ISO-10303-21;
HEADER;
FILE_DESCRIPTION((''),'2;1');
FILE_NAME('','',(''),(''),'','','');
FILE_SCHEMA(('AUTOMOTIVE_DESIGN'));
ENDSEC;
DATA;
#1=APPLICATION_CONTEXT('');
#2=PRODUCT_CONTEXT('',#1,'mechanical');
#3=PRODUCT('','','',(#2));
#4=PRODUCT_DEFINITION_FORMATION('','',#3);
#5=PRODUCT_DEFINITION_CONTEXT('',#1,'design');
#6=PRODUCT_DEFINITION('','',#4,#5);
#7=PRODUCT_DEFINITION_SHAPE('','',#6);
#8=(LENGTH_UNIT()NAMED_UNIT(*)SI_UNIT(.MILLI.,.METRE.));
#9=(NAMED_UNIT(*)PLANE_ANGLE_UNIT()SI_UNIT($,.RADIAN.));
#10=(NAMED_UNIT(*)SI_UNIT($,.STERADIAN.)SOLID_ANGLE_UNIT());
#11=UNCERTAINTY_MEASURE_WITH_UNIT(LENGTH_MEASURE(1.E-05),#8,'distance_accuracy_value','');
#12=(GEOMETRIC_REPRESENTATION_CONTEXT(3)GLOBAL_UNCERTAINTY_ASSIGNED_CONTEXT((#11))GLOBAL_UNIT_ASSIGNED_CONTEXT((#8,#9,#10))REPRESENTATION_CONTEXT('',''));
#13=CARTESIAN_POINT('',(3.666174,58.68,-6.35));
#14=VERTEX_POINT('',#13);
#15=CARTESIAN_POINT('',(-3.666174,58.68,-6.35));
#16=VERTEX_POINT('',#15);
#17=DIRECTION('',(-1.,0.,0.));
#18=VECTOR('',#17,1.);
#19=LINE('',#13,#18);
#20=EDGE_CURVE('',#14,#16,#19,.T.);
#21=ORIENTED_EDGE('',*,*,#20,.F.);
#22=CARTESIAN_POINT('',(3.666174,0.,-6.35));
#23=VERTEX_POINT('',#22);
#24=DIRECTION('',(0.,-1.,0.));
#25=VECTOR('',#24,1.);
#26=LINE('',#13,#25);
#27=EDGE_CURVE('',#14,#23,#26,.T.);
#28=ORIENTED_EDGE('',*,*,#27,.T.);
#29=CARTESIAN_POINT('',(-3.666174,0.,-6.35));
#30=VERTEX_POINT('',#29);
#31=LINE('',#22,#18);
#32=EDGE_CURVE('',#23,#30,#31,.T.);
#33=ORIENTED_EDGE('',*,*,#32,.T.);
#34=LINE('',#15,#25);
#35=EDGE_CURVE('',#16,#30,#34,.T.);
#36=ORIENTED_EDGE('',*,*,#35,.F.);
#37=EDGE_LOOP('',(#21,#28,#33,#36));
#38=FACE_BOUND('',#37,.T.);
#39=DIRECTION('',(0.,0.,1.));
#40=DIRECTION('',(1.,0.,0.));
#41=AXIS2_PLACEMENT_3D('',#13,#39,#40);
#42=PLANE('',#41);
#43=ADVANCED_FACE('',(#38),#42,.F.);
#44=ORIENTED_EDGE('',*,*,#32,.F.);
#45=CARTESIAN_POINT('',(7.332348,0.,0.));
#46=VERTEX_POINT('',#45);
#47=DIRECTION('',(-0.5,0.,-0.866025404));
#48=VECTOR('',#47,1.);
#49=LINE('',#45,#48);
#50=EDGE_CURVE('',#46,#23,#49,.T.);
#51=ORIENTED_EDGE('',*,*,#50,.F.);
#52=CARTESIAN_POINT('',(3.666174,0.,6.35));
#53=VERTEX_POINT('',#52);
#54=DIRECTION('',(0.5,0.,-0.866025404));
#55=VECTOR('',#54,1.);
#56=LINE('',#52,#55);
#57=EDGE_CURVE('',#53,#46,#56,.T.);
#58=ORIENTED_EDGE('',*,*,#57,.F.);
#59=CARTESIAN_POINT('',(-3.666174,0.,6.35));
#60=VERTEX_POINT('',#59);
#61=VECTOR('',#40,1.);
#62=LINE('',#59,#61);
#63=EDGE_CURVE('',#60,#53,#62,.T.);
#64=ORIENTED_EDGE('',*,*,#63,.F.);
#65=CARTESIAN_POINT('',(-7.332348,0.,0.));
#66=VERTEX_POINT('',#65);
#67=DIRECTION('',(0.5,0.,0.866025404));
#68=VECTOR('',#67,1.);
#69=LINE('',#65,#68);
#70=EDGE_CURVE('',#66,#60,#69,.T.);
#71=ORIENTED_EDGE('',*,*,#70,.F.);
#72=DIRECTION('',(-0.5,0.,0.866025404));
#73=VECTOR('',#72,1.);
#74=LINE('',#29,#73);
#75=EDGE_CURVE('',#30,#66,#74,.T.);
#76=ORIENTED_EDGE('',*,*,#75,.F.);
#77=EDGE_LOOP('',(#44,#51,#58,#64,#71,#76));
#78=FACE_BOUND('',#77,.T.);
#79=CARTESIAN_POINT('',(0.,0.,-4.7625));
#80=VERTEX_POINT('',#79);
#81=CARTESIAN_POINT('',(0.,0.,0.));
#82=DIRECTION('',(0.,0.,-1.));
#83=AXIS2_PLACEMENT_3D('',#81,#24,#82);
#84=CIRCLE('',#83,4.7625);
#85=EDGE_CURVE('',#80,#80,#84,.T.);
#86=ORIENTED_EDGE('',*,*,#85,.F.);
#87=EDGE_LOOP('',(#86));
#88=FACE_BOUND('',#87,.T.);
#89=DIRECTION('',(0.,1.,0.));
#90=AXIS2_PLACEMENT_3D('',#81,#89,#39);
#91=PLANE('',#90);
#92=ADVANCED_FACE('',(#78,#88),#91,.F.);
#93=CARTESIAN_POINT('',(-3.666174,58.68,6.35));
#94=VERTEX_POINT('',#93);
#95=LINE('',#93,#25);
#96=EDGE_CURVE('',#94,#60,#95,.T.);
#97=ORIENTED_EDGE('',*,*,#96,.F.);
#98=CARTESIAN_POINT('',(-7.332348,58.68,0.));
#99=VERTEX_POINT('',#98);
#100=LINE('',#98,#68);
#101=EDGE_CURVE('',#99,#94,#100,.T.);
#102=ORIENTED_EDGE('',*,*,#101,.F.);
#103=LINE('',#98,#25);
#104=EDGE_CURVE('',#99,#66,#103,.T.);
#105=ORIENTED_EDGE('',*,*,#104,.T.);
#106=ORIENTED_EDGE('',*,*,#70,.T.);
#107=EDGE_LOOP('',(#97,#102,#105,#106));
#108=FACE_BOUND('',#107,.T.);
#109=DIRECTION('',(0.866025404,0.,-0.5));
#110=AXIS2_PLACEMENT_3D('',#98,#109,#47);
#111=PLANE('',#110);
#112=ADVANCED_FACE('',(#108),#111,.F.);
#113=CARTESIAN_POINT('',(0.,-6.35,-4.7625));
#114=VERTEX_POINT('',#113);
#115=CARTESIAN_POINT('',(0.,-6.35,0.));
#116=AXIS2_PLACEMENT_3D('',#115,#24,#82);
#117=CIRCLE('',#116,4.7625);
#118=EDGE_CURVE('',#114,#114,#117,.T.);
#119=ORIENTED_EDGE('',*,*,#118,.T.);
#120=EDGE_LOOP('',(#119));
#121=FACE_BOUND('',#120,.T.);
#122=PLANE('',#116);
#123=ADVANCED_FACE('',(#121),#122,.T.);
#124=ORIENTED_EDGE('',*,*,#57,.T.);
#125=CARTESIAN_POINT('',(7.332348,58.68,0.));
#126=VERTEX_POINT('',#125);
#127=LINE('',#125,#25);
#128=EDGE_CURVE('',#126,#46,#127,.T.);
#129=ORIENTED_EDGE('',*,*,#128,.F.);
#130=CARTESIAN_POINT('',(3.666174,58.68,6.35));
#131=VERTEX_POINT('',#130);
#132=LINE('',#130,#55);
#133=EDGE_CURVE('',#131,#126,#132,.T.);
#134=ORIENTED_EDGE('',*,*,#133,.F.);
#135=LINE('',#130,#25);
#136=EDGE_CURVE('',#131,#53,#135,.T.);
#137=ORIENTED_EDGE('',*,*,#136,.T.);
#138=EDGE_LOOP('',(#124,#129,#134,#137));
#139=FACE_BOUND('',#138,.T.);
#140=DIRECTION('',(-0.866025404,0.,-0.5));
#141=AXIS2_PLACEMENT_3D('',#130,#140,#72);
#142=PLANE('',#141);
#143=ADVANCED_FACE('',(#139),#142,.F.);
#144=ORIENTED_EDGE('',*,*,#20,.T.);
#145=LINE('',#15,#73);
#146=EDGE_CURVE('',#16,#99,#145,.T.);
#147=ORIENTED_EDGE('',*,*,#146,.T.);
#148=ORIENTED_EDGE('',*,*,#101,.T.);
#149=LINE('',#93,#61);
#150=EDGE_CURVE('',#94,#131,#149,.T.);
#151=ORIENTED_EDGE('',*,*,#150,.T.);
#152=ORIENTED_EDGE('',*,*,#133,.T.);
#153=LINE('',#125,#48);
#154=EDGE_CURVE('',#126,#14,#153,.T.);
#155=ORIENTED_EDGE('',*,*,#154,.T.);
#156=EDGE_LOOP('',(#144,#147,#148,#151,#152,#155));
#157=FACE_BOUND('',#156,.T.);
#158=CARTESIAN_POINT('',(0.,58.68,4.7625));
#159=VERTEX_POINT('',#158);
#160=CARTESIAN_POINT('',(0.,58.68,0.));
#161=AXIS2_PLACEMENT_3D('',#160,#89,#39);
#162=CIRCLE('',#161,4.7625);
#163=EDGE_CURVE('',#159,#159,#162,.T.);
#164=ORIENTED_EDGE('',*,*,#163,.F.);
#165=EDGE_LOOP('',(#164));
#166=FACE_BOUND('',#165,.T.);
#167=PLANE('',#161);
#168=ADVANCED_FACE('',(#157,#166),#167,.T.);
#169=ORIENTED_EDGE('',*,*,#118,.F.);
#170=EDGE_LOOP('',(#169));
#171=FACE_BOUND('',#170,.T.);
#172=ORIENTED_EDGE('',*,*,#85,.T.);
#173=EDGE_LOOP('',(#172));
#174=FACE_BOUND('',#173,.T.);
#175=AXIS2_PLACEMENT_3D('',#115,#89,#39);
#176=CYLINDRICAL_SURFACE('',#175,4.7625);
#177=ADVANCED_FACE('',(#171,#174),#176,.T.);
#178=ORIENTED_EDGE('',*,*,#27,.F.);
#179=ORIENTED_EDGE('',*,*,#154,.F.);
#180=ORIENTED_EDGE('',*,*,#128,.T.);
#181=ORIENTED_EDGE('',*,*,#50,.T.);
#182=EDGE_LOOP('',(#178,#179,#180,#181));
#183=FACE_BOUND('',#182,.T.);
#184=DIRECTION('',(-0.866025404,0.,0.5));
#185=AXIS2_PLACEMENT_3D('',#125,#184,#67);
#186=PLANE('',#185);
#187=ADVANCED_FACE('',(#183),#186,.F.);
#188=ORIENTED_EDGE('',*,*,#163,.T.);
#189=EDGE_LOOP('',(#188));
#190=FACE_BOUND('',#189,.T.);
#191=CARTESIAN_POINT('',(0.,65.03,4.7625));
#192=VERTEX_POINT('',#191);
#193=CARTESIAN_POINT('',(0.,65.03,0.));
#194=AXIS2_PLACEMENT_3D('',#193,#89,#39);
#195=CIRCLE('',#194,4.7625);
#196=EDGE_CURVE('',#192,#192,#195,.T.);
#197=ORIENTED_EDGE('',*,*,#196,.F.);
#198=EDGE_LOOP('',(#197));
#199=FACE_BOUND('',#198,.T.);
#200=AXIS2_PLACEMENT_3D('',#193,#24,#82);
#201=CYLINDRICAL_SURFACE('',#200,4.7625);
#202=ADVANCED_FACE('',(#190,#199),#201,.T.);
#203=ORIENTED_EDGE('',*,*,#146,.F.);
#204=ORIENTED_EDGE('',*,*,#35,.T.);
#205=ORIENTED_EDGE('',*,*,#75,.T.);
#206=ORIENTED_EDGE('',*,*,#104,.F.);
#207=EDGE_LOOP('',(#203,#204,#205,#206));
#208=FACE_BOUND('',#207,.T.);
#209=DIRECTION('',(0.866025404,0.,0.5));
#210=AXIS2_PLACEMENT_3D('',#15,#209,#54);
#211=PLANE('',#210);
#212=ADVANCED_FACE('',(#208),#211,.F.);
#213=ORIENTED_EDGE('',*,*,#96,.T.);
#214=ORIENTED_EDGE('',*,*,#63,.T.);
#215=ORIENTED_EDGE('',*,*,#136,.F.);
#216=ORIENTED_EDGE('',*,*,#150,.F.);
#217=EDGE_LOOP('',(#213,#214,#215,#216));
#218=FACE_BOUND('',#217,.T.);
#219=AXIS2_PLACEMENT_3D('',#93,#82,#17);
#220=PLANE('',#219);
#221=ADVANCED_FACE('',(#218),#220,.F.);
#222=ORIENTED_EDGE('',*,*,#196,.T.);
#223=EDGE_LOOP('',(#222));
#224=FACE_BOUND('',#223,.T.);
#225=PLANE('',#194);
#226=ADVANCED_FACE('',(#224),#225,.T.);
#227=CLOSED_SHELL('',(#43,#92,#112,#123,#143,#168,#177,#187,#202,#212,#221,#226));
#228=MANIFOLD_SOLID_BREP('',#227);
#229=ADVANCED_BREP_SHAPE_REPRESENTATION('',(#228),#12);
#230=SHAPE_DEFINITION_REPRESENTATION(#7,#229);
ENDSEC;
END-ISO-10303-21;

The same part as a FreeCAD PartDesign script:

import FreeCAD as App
import Part
import Sketcher

V = App.Vector
Q = App.Units.Quantity

doc = App.newDocument("Part")
body = doc.addObject("PartDesign::Body", "Body")

# Sketch on XZ plane
sketch1 = body.newObject("Sketcher::SketchObject", "Sketch")
sketch1.AttachmentSupport = (doc.getObject("XZ_Plane"), [""])
sketch1.MapMode = "FlatFace"
sketch1.addGeometry(Part.LineSegment(V(7, 0, 0), V(4, -6, 0)), False)
sketch1.addGeometry(Part.LineSegment(V(4, -6, 0), V(-4, -6, 0)), False)
sketch1.addGeometry(Part.LineSegment(V(-4, -6, 0), V(-7, 0, 0)), False)
sketch1.addGeometry(Part.LineSegment(V(-7, 0, 0), V(-4, 6, 0)), False)
sketch1.addGeometry(Part.LineSegment(V(-4, 6, 0), V(4, 6, 0)), False)
sketch1.addGeometry(Part.LineSegment(V(4, 6, 0), V(7, 0, 0)), False)
sketch1.addConstraint(Sketcher.Constraint("Coincident", 0, 2, 1, 1))
sketch1.addConstraint(Sketcher.Constraint("Coincident", 1, 2, 2, 1))
sketch1.addConstraint(Sketcher.Constraint("Coincident", 2, 2, 3, 1))
sketch1.addConstraint(Sketcher.Constraint("Coincident", 3, 2, 4, 1))
sketch1.addConstraint(Sketcher.Constraint("Coincident", 4, 2, 5, 1))
sketch1.addConstraint(Sketcher.Constraint("Coincident", 5, 2, 0, 1))
sketch1.addConstraint(Sketcher.Constraint("Horizontal", 1))
sketch1.addConstraint(Sketcher.Constraint("Horizontal", 4))
sketch1.addConstraint(Sketcher.Constraint("Symmetric", 0, 2, 3, 2, -1, 1))
sketch1.addConstraint(Sketcher.Constraint("Symmetric", 2, 2, 5, 2, -1, 1))
sketch1.addConstraint(Sketcher.Constraint("PointOnObject", 2, 2, -1))
sketch1.addConstraint(Sketcher.Constraint("Parallel", 2, 5))
sketch1.addConstraint(Sketcher.Constraint("Vertical", 1, 2, 3, 2))
sketch1.addConstraint(Sketcher.Constraint("Angle", 0, Q("-120 deg")))
sketch1.addConstraint(Sketcher.Constraint("DistanceY", 1, 2, 3, 2, Q("0.5 in")))
sketch1.addConstraint(Sketcher.Constraint("DistanceX", 1, 2, 1, 1, Q("7.332348 mm")))
pad1 = body.newObject("PartDesign::Pad", "Pad")
pad1.Profile = sketch1
pad1.Length = 58.68
pad1.Reversed = True

# Sketch on XZ plane
sketch2 = body.newObject("Sketcher::SketchObject", "Sketch001")
sketch2.AttachmentSupport = (doc.getObject("XZ_Plane"), [""])
sketch2.MapMode = "FlatFace"
sketch2.AttachmentOffset = App.Placement(V(0, 0, -58.68), App.Rotation())
sketch2.addGeometry(Part.Circle(V(0, 0, 0), V(0, 0, 1), 4.8), False)
sketch2.addConstraint(Sketcher.Constraint("Coincident", 0, 3, -1, 1))
sketch2.addConstraint(Sketcher.Constraint("Diameter", 0, Q("0.375 in")))
pad2 = body.newObject("PartDesign::Pad", "Pad001")
pad2.Profile = sketch2
pad2.Length = Q("0.25 in")
pad2.Reversed = True

# Sketch on XZ plane
sketch3 = body.newObject("Sketcher::SketchObject", "Sketch002")
sketch3.AttachmentSupport = (doc.getObject("XZ_Plane"), [""])
sketch3.MapMode = "FlatFace"
sketch3.AttachmentOffset = App.Placement(V(0, 0, 0.25 * 25.4), App.Rotation())
sketch3.addGeometry(Part.Circle(V(0, 0, 0), V(0, 0, 1), 4.8), False)
sketch3.addConstraint(Sketcher.Constraint("Coincident", 0, 3, -1, 1))
sketch3.addConstraint(Sketcher.Constraint("Diameter", 0, Q("0.375 in")))
pad3 = body.newObject("PartDesign::Pad", "Pad002")
pad3.Profile = sketch3
pad3.Length = Q("0.25 in")
pad3.Reversed = True

doc.recompute()
